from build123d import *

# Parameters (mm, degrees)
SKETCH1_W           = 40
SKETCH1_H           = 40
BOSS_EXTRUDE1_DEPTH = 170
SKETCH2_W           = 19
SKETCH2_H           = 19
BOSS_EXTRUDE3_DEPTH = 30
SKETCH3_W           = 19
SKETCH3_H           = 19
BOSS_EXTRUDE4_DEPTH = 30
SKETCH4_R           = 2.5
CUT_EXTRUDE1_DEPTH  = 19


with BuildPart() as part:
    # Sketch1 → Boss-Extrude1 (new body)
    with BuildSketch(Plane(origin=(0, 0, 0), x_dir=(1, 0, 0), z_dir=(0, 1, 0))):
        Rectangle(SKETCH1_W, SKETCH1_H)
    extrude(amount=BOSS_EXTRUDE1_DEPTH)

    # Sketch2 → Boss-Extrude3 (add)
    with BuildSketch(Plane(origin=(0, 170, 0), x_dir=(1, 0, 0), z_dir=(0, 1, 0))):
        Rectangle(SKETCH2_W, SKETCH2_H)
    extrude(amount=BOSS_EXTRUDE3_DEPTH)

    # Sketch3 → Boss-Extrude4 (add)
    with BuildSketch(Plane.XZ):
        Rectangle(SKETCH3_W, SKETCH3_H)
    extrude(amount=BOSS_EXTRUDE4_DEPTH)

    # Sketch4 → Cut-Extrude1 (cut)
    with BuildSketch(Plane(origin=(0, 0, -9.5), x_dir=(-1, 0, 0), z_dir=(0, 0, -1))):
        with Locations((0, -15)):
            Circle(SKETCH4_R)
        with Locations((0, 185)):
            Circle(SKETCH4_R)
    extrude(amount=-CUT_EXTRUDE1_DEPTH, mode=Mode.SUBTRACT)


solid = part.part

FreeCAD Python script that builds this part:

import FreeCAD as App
import Part
import Sketcher
from FreeCAD import Vector


def add_polygon(sketch, points):
    """Adds a closed chain of lines whose ends are joined by coincident constraints."""
    first, n = sketch.GeometryCount, len(points)
    for a, b in zip(points, points[1:] + points[:1]):
        sketch.addGeometry(Part.LineSegment(App.Vector(*a, 0), App.Vector(*b, 0)), False)
    for i in range(n):
        sketch.addConstraint(Sketcher.Constraint("Coincident", first + i, 2, first + (i + 1) % n, 1))

doc = App.newDocument("Part")
body = doc.addObject("PartDesign::Body", "Body")

sketch1 = body.newObject("Sketcher::SketchObject", "Sketch")
sketch1.AttachmentSupport = (doc.getObject("XZ_Plane"), [""])
sketch1.MapMode = "FlatFace"
add_polygon(sketch1, [(-20, -20), (-20, 20), (20, 20), (20, -20)])
sketch1.addConstraint([
    Sketcher.Constraint("Vertical", 0),
    Sketcher.Constraint("Horizontal", 1),
    Sketcher.Constraint("Vertical", 2),
    Sketcher.Constraint("Horizontal", 3),
    Sketcher.Constraint("Symmetric", 0, 2, 2, 2, -1, 1),
    Sketcher.Constraint("Equal", 3, 0),
    Sketcher.Constraint("DistanceX", 1, 1, 1, 2, 40.0),
])
pad1 = body.newObject("PartDesign::Pad", "Pad")
pad1.Profile = sketch1
pad1.Length = 170
pad1.Reversed = True

sketch2 = body.newObject("Sketcher::SketchObject", "Sketch001")
sketch2.AttachmentSupport = (doc.getObject("XZ_Plane"), [""])
sketch2.MapMode = "FlatFace"
sketch2.AttachmentOffset = App.Placement(Vector(0, 0, -170), App.Rotation())
add_polygon(sketch2, [(-10, -10), (-10, 10), (10, 10), (10, -10)])
sketch2.addConstraint([
    Sketcher.Constraint("Vertical", 0),
    Sketcher.Constraint("Horizontal", 1),
    Sketcher.Constraint("Vertical", 2),
    Sketcher.Constraint("Horizontal", 3),
    Sketcher.Constraint("Symmetric", 0, 2, 2, 2, -1, 1),
    Sketcher.Constraint("Equal", 3, 0),
    Sketcher.Constraint("DistanceX", 1, 1, 1, 2, 19.0),
])
pad2 = body.newObject("PartDesign::Pad", "Pad001")
pad2.Profile = sketch2
pad2.Length = 30
pad2.Reversed = True

sketch3 = body.newObject("Sketcher::SketchObject", "Sketch002")
sketch3.AttachmentSupport = (doc.getObject("XZ_Plane"), [""])
sketch3.MapMode = "FlatFace"
add_polygon(sketch3, [(-10, 10), (-10, -10), (10, -10), (10, 10)])
sketch3.addConstraint([
    Sketcher.Constraint("Vertical", 0),
    Sketcher.Constraint("Horizontal", 1),
    Sketcher.Constraint("Vertical", 2),
    Sketcher.Constraint("Horizontal", 3),
    Sketcher.Constraint("Symmetric", 0, 2, 2, 2, -1, 1),
    Sketcher.Constraint("Equal", 3, 0),
    Sketcher.Constraint("DistanceX", 1, 1, 1, 2, 19.0),
])
pad3 = body.newObject("PartDesign::Pad", "Pad002")
pad3.Profile = sketch3
pad3.Length = 30

sketch4 = body.newObject("Sketcher::SketchObject", "Sketch003")
sketch4.AttachmentSupport = (doc.getObject("XY_Plane"), [""])
sketch4.MapMode = "FlatFace"
sketch4.AttachmentOffset = App.Placement(Vector(0, 0, -9.5), App.Rotation())
sketch4.addGeometry([
    Part.Circle(Vector(0, -15, 0), Vector(0, 0, 1), 2.5),
    Part.Circle(Vector(0, 185, 0), Vector(0, 0, 1), 2.5),
], False)
sketch4.addConstraint([
    Sketcher.Constraint("Equal", 0, 1),
    Sketcher.Constraint("PointOnObject", 0, 3, -2),
    Sketcher.Constraint("PointOnObject", 1, 3, -2),
    Sketcher.Constraint("Diameter", 0, 5.0),
    Sketcher.Constraint("DistanceY", 0, 3, -1, 1, 15.0),
    Sketcher.Constraint("DistanceY", -1, 1, 1, 3, 185.0),
])
pocket1 = body.newObject("PartDesign::Pocket", "Pocket")
pocket1.Profile = sketch4
pocket1.Length = 19
pocket1.Reversed = True

doc.recompute()
